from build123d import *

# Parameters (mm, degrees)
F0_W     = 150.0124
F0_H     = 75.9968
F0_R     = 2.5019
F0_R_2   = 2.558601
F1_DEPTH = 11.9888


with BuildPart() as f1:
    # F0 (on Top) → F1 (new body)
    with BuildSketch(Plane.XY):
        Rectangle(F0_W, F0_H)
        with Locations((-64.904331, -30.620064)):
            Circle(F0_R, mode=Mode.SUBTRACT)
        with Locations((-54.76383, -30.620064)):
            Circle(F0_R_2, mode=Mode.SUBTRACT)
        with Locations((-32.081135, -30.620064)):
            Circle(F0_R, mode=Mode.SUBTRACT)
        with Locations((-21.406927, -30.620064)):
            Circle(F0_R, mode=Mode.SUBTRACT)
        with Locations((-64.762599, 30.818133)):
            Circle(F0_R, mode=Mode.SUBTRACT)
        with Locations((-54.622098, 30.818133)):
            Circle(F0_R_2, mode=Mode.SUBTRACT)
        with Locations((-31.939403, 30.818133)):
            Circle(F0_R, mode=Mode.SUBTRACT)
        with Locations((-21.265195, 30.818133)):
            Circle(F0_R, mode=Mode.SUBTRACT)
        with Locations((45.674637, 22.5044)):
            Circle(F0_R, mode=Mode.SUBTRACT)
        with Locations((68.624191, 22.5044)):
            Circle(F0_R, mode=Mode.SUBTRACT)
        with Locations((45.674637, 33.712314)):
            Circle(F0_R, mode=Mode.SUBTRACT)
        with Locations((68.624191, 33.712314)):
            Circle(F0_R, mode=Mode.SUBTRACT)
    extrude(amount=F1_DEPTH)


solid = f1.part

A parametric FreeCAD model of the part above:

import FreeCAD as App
import Part
import Sketcher
Q = App.Units.Quantity

doc = App.newDocument("Part")
body = doc.addObject("PartDesign::Body", "Body")

sketch1 = body.newObject("Sketcher::SketchObject", "Sketch")
sketch1.AttachmentSupport = (doc.getObject("XY_Plane"), [""])
sketch1.MapMode = "FlatFace"
sketch1.addGeometry([
    Part.LineSegment(App.Vector(-75.0062, 37.9984, 0), App.Vector(-75.0062, -37.9984, 0)),
    Part.LineSegment(App.Vector(-75.0062, -37.9984, 0), App.Vector(75.0062, -37.9984, 0)),
    Part.LineSegment(App.Vector(75.0062, -37.9984, 0), App.Vector(75.0062, 37.9984, 0)),
    Part.LineSegment(App.Vector(75.0062, 37.9984, 0), App.Vector(-75.0062, 37.9984, 0)),
    Part.Circle(App.Vector(-64.904331, -30.620064, 0), App.Vector(0, 0, 1), 2.5019),
    Part.Circle(App.Vector(-54.76383, -30.620064, 0), App.Vector(0, 0, 1), 2.558601),
    Part.Circle(App.Vector(-32.081135, -30.620064, 0), App.Vector(0, 0, 1), 2.5019),
    Part.Circle(App.Vector(-21.406927, -30.620064, 0), App.Vector(0, 0, 1), 2.5019),
    Part.Circle(App.Vector(-64.762599, 30.818133, 0), App.Vector(0, 0, 1), 2.5019),
    Part.Circle(App.Vector(-54.622098, 30.818133, 0), App.Vector(0, 0, 1), 2.558601),
    Part.Circle(App.Vector(-31.939403, 30.818133, 0), App.Vector(0, 0, 1), 2.5019),
    Part.Circle(App.Vector(-21.265195, 30.818133, 0), App.Vector(0, 0, 1), 2.5019),
    Part.Circle(App.Vector(45.674637, 22.5044, 0), App.Vector(0, 0, 1), 2.5019),
    Part.Circle(App.Vector(68.624191, 22.5044, 0), App.Vector(0, 0, 1), 2.5019),
    Part.Circle(App.Vector(45.674637, 33.712314, 0), App.Vector(0, 0, 1), 2.5019),
    Part.Circle(App.Vector(68.624191, 33.712314, 0), App.Vector(0, 0, 1), 2.5019),
], False)
sketch1.addConstraint([
    Sketcher.Constraint("Coincident", 0, 2, 1, 1),
    Sketcher.Constraint("Coincident", 1, 2, 2, 1),
    Sketcher.Constraint("Coincident", 2, 2, 3, 1),
    Sketcher.Constraint("Coincident", 3, 2, 0, 1),
    Sketcher.Constraint("Vertical", 0),
    Sketcher.Constraint("Horizontal", 1),
    Sketcher.Constraint("Vertical", 2),
    Sketcher.Constraint("Horizontal", 3),
    Sketcher.Constraint("Equal", 4, 6),
    Sketcher.Constraint("Equal", 6, 7),
    Sketcher.Constraint("Equal", 7, 8),
    Sketcher.Constraint("Equal", 5, 9),
    Sketcher.Constraint("Equal", 8, 10),
    Sketcher.Constraint("Equal", 10, 11),
    Sketcher.Constraint("Equal", 11, 12),
    Sketcher.Constraint("Equal", 12, 13),
    Sketcher.Constraint("Equal", 13, 14),
    Sketcher.Constraint("Equal", 14, 15),
    Sketcher.Constraint("Symmetric", 0, 2, 2, 2, -1, 1),
    Sketcher.Constraint("Horizontal", 4, 3, 5, 3),
    Sketcher.Constraint("Horizontal", 5, 3, 6, 3),
    Sketcher.Constraint("Horizontal", 6, 3, 7, 3),
    Sketcher.Constraint("Horizontal", 8, 3, 9, 3),
    Sketcher.Constraint("Horizontal", 9, 3, 10, 3),
    Sketcher.Constraint("Horizontal", 10, 3, 11, 3),
    Sketcher.Constraint("Horizontal", 12, 3, 13, 3),
    Sketcher.Constraint("Horizontal", 14, 3, 15, 3),
    Sketcher.Constraint("Vertical", 12, 3, 14, 3),
    Sketcher.Constraint("Vertical", 13, 3, 15, 3),
    Sketcher.Constraint("Diameter", 4, Q("0.197 in")),
    Sketcher.Constraint("Diameter", 5, 5.117202),
    Sketcher.Constraint("DistanceX", 1, 1, 1, 2, Q("5.906 in")),
    Sketcher.Constraint("DistanceY", 0, 2, 0, 1, Q("2.992 in")),
    Sketcher.Constraint("DistanceY", 13, 3, 2, 2, Q("0.61 in")),
    Sketcher.Constraint("DistanceX", 8, 3, -1, 1, 64.762599),
    Sketcher.Constraint("DistanceX", 4, 3, 5, 3, 10.140501),
    Sketcher.Constraint("DistanceX", 8, 3, 9, 3, 10.140501),
    Sketcher.Constraint("DistanceX", 4, 3, -1, 1, 64.904331),
    Sketcher.Constraint("DistanceX", -1, 1, 13, 3, 68.624191),
    Sketcher.Constraint("DistanceX", 6, 3, 7, 3, 10.674208),
    Sketcher.Constraint("DistanceX", 8, 3, 7, 3, 43.355672),
    Sketcher.Constraint("DistanceX", 6, 3, 11, 3, 10.81594),
    Sketcher.Constraint("DistanceX", 11, 3, 12, 3, 66.939832),
    Sketcher.Constraint("DistanceX", 10, 3, 12, 3, 77.61404),
    Sketcher.Constraint("DistanceY", 11, 3, 14, 3, 2.894181),
    Sketcher.Constraint("DistanceY", 7, 3, 14, 3, 64.332378),
    Sketcher.Constraint("DistanceY", 4, 3, -1, 1, 30.620064),
])
pad1 = body.newObject("PartDesign::Pad", "Pad")
pad1.Profile = sketch1
pad1.Length = Q("0.472 in")

doc.recompute()
